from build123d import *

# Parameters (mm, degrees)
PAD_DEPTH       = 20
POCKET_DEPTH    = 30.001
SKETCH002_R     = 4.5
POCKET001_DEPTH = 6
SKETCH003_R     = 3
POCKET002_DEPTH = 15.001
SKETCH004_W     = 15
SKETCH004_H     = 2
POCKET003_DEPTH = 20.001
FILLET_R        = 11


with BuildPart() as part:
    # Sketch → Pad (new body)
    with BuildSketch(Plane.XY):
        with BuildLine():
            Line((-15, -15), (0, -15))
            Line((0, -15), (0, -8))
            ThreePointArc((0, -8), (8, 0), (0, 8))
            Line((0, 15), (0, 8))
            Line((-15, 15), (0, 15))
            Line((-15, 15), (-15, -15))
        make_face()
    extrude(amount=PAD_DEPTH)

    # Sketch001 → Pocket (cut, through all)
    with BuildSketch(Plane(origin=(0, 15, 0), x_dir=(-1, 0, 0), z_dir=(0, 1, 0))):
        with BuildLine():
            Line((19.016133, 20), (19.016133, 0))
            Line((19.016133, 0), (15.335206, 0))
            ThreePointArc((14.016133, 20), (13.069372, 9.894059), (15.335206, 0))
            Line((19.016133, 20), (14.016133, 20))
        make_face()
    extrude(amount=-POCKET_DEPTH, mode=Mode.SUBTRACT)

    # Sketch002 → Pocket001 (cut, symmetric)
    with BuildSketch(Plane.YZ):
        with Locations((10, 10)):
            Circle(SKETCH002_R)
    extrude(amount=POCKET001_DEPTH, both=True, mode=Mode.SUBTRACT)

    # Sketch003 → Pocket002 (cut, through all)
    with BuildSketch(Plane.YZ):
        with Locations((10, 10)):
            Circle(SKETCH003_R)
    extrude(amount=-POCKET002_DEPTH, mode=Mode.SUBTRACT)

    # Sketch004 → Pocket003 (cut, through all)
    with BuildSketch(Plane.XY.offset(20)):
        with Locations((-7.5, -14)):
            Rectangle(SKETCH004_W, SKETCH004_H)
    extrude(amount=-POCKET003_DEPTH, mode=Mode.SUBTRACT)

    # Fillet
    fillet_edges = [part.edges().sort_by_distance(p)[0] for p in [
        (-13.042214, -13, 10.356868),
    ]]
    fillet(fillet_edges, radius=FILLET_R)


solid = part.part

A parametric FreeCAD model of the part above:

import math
import FreeCAD as App
import Part
import Sketcher
Q = App.Units.Quantity


def edges_at(feature, points):
    """Names of the edges that pass closest to the given points."""
    edges = feature.Shape.Edges
    near = lambda p: min(range(len(edges)), key=lambda i: edges[i].distToShape(Part.Vertex(*p))[0])
    return sorted({f"Edge{near(p) + 1}" for p in points})


def add_polygon(sketch, points):
    """Adds a closed chain of lines whose ends are joined by coincident constraints."""
    first, n = sketch.GeometryCount, len(points)
    for a, b in zip(points, points[1:] + points[:1]):
        sketch.addGeometry(Part.LineSegment(App.Vector(*a, 0), App.Vector(*b, 0)), False)
    for i in range(n):
        sketch.addConstraint(Sketcher.Constraint("Coincident", first + i, 2, first + (i + 1) % n, 1))

doc = App.newDocument("Part")
body = doc.addObject("PartDesign::Body", "Body")

# Sketch on XY plane
sketch1 = doc.addObject("Sketcher::SketchObject", "Sketch")
body.addObject(sketch1)
sketch1.AttachmentSupport = (doc.XY_Plane, [""])
sketch1.MapMode = "FlatFace"
sketch1.addGeometry(Part.LineSegment(App.Vector(-15, -15, 0), App.Vector(0, -15, 0)), False)
sketch1.addGeometry(Part.LineSegment(App.Vector(0, -15, 0), App.Vector(0, -8, 0)), False)
sketch1.addGeometry(Part.ArcOfCircle(Part.Circle(App.Vector(0, 0, 0), App.Vector(0, 0, 1), 8), math.radians(-90), math.radians(90)), False)
sketch1.addGeometry(Part.LineSegment(App.Vector(0, 8, 0), App.Vector(0, 15, 0)), False)
sketch1.addGeometry(Part.LineSegment(App.Vector(0, 15, 0), App.Vector(-15, 15, 0)), False)
sketch1.addGeometry(Part.LineSegment(App.Vector(-15, 15, 0), App.Vector(-15, -15, 0)), False)
sketch1.addConstraint(Sketcher.Constraint("Coincident", 0, 2, 1, 1))
sketch1.addConstraint(Sketcher.Constraint("Coincident", 1, 2, 2, 1))
sketch1.addConstraint(Sketcher.Constraint("Coincident", 2, 2, 3, 1))
sketch1.addConstraint(Sketcher.Constraint("Coincident", 3, 2, 4, 1))
sketch1.addConstraint(Sketcher.Constraint("Coincident", 4, 2, 5, 1))
sketch1.addConstraint(Sketcher.Constraint("Coincident", 5, 2, 0, 1))
sketch1.addConstraint(Sketcher.Constraint("Horizontal", 0))
sketch1.addConstraint(Sketcher.Constraint("Vertical", 1))
sketch1.addConstraint(Sketcher.Constraint("Vertical", 3))
sketch1.addConstraint(Sketcher.Constraint("Horizontal", 4))
sketch1.addConstraint(Sketcher.Constraint("Vertical", 5))
sketch1.addConstraint(Sketcher.Constraint("Coincident", 2, 3, -1, 1))
sketch1.addConstraint(Sketcher.Constraint("Symmetric", 0, 2, 3, 2, -1, 1))
sketch1.addConstraint(Sketcher.Constraint("PointOnObject", 0, 2, -2))
sketch1.addConstraint(Sketcher.Constraint("Radius", 2, Q("8 mm")))
sketch1.addConstraint(Sketcher.Constraint("DistanceX", 0, 1, 0, 2, Q("15 mm")))
sketch1.addConstraint(Sketcher.Constraint("DistanceY", 1, 1, 1, 2, Q("7 mm")))
pad1 = doc.addObject("PartDesign::Pad", "Pad")
body.addObject(pad1)
pad1.Profile = sketch1
pad1.Length = 20

# Sketch on XZ plane
sketch2 = doc.addObject("Sketcher::SketchObject", "Sketch001")
body.addObject(sketch2)
sketch2.AttachmentSupport = (doc.XZ_Plane, [""])
sketch2.MapMode = "FlatFace"
sketch2.AttachmentOffset = App.Placement(App.Vector(0, 0, -15), App.Rotation())
sketch2.addGeometry(Part.LineSegment(App.Vector(-19.016133, 0, 0), App.Vector(-19.016133, 20, 0)), False)
sketch2.addGeometry(Part.LineSegment(App.Vector(-19.016133, 20, 0), App.Vector(-14.016133, 20, 0)), False)
sketch2.addGeometry(Part.ArcOfCircle(Part.Circle(App.Vector(-45.000005, 12.000001, 0), App.Vector(0, 0, 1), 32.000005), math.radians(-22.02431), math.radians(14.477509)), False)
sketch2.addGeometry(Part.LineSegment(App.Vector(-15.335206, 0, 0), App.Vector(-19.016133, 0, 0)), False)
sketch2.addConstraint(Sketcher.Constraint("Coincident", 0, 2, 1, 1))
sketch2.addConstraint(Sketcher.Constraint("Coincident", 1, 2, 2, 2))
sketch2.addConstraint(Sketcher.Constraint("Coincident", 2, 1, 3, 1))
sketch2.addConstraint(Sketcher.Constraint("Coincident", 3, 2, 0, 1))
sketch2.addConstraint(Sketcher.Constraint("Vertical", 0))
sketch2.addConstraint(Sketcher.Constraint("Horizontal", 1))
sketch2.addConstraint(Sketcher.Constraint("Horizontal", 3))
sketch2.addConstraint(Sketcher.Constraint("PointOnObject", 2, 1, -1))
sketch2.addConstraint(Sketcher.Constraint("DistanceX", 1, 1, 1, 2, Q("5 mm")))
sketch2.addConstraint(Sketcher.Constraint("DistanceY", 0, 1, 0, 2, Q("20 mm")))
sketch2.addConstraint(Sketcher.Constraint("DistanceY", -1, 1, 2, 3, Q("12.000001 mm")))
sketch2.addConstraint(Sketcher.Constraint("Radius", 2, Q("32.000005 mm")))
sketch2.addConstraint(Sketcher.Constraint("DistanceX", 2, 3, -1, 1, Q("45.000005 mm")))
pocket1 = doc.addObject("PartDesign::Pocket", "Pocket")
body.addObject(pocket1)
pocket1.Profile = sketch2
pocket1.Type = "ThroughAll"
pocket1.Reversed = True

# Sketch on YZ plane
sketch3 = doc.addObject("Sketcher::SketchObject", "Sketch002")
body.addObject(sketch3)
sketch3.AttachmentSupport = (doc.YZ_Plane, [""])
sketch3.MapMode = "FlatFace"
sketch3.addGeometry(Part.Circle(App.Vector(10, 10, 0), App.Vector(0, 0, 1), 4.5), False)
sketch3.addConstraint(Sketcher.Constraint("Diameter", 0, Q("9 mm")))
sketch3.addConstraint(Sketcher.Constraint("DistanceX", -1, 1, 0, 3, Q("10 mm")))
sketch3.addConstraint(Sketcher.Constraint("DistanceY", -1, 1, 0, 3, Q("10 mm")))
pocket2 = doc.addObject("PartDesign::Pocket", "Pocket001")
body.addObject(pocket2)
pocket2.Profile = sketch3
pocket2.Length = 12
pocket2.Midplane = True

# Sketch on YZ plane
sketch4 = doc.addObject("Sketcher::SketchObject", "Sketch003")
body.addObject(sketch4)
sketch4.AttachmentSupport = (doc.YZ_Plane, [""])
sketch4.MapMode = "FlatFace"
sketch4.addGeometry(Part.Circle(App.Vector(10, 10, 0), App.Vector(0, 0, 1), 3), False)
sketch4.addConstraint(Sketcher.Constraint("Diameter", 0, Q("6 mm")))
sketch4.addConstraint(Sketcher.Constraint("DistanceX", -1, 1, 0, 3, Q("10 mm")))
sketch4.addConstraint(Sketcher.Constraint("DistanceY", -1, 1, 0, 3, Q("10 mm")))
pocket3 = doc.addObject("PartDesign::Pocket", "Pocket002")
body.addObject(pocket3)
pocket3.Profile = sketch4
pocket3.Type = "ThroughAll"

# Sketch on XY plane
sketch5 = doc.addObject("Sketcher::SketchObject", "Sketch004")
body.addObject(sketch5)
sketch5.AttachmentSupport = (doc.XY_Plane, [""])
sketch5.MapMode = "FlatFace"
sketch5.AttachmentOffset = App.Placement(App.Vector(0, 0, 20), App.Rotation())
add_polygon(sketch5, [(-15, -13), (-15, -15), (0, -15), (0, -13)])  # lines 0-3
sketch5.addConstraint(Sketcher.Constraint("Vertical", 0))
sketch5.addConstraint(Sketcher.Constraint("Horizontal", 1))
sketch5.addConstraint(Sketcher.Constraint("Vertical", 2))
sketch5.addConstraint(Sketcher.Constraint("Horizontal", 3))
sketch5.addConstraint(Sketcher.Constraint("PointOnObject", 1, 2, -2))
sketch5.addConstraint(Sketcher.Constraint("DistanceX", 1, 1, 1, 2, Q("15 mm")))
sketch5.addConstraint(Sketcher.Constraint("DistanceY", 0, 2, 0, 1, Q("2 mm")))
sketch5.addConstraint(Sketcher.Constraint("DistanceY", 0, 2, -1, 1, Q("15 mm")))
pocket4 = doc.addObject("PartDesign::Pocket", "Pocket003")
body.addObject(pocket4)
pocket4.Profile = sketch5
pocket4.Type = "ThroughAll"
doc.recompute()

fillet = doc.addObject("PartDesign::Fillet", "Fillet")
body.addObject(fillet)
fillet.Base = (pocket4, edges_at(pocket4, [(-13.042, -13, 10.357)]))
fillet.Radius = 11

doc.recompute()
